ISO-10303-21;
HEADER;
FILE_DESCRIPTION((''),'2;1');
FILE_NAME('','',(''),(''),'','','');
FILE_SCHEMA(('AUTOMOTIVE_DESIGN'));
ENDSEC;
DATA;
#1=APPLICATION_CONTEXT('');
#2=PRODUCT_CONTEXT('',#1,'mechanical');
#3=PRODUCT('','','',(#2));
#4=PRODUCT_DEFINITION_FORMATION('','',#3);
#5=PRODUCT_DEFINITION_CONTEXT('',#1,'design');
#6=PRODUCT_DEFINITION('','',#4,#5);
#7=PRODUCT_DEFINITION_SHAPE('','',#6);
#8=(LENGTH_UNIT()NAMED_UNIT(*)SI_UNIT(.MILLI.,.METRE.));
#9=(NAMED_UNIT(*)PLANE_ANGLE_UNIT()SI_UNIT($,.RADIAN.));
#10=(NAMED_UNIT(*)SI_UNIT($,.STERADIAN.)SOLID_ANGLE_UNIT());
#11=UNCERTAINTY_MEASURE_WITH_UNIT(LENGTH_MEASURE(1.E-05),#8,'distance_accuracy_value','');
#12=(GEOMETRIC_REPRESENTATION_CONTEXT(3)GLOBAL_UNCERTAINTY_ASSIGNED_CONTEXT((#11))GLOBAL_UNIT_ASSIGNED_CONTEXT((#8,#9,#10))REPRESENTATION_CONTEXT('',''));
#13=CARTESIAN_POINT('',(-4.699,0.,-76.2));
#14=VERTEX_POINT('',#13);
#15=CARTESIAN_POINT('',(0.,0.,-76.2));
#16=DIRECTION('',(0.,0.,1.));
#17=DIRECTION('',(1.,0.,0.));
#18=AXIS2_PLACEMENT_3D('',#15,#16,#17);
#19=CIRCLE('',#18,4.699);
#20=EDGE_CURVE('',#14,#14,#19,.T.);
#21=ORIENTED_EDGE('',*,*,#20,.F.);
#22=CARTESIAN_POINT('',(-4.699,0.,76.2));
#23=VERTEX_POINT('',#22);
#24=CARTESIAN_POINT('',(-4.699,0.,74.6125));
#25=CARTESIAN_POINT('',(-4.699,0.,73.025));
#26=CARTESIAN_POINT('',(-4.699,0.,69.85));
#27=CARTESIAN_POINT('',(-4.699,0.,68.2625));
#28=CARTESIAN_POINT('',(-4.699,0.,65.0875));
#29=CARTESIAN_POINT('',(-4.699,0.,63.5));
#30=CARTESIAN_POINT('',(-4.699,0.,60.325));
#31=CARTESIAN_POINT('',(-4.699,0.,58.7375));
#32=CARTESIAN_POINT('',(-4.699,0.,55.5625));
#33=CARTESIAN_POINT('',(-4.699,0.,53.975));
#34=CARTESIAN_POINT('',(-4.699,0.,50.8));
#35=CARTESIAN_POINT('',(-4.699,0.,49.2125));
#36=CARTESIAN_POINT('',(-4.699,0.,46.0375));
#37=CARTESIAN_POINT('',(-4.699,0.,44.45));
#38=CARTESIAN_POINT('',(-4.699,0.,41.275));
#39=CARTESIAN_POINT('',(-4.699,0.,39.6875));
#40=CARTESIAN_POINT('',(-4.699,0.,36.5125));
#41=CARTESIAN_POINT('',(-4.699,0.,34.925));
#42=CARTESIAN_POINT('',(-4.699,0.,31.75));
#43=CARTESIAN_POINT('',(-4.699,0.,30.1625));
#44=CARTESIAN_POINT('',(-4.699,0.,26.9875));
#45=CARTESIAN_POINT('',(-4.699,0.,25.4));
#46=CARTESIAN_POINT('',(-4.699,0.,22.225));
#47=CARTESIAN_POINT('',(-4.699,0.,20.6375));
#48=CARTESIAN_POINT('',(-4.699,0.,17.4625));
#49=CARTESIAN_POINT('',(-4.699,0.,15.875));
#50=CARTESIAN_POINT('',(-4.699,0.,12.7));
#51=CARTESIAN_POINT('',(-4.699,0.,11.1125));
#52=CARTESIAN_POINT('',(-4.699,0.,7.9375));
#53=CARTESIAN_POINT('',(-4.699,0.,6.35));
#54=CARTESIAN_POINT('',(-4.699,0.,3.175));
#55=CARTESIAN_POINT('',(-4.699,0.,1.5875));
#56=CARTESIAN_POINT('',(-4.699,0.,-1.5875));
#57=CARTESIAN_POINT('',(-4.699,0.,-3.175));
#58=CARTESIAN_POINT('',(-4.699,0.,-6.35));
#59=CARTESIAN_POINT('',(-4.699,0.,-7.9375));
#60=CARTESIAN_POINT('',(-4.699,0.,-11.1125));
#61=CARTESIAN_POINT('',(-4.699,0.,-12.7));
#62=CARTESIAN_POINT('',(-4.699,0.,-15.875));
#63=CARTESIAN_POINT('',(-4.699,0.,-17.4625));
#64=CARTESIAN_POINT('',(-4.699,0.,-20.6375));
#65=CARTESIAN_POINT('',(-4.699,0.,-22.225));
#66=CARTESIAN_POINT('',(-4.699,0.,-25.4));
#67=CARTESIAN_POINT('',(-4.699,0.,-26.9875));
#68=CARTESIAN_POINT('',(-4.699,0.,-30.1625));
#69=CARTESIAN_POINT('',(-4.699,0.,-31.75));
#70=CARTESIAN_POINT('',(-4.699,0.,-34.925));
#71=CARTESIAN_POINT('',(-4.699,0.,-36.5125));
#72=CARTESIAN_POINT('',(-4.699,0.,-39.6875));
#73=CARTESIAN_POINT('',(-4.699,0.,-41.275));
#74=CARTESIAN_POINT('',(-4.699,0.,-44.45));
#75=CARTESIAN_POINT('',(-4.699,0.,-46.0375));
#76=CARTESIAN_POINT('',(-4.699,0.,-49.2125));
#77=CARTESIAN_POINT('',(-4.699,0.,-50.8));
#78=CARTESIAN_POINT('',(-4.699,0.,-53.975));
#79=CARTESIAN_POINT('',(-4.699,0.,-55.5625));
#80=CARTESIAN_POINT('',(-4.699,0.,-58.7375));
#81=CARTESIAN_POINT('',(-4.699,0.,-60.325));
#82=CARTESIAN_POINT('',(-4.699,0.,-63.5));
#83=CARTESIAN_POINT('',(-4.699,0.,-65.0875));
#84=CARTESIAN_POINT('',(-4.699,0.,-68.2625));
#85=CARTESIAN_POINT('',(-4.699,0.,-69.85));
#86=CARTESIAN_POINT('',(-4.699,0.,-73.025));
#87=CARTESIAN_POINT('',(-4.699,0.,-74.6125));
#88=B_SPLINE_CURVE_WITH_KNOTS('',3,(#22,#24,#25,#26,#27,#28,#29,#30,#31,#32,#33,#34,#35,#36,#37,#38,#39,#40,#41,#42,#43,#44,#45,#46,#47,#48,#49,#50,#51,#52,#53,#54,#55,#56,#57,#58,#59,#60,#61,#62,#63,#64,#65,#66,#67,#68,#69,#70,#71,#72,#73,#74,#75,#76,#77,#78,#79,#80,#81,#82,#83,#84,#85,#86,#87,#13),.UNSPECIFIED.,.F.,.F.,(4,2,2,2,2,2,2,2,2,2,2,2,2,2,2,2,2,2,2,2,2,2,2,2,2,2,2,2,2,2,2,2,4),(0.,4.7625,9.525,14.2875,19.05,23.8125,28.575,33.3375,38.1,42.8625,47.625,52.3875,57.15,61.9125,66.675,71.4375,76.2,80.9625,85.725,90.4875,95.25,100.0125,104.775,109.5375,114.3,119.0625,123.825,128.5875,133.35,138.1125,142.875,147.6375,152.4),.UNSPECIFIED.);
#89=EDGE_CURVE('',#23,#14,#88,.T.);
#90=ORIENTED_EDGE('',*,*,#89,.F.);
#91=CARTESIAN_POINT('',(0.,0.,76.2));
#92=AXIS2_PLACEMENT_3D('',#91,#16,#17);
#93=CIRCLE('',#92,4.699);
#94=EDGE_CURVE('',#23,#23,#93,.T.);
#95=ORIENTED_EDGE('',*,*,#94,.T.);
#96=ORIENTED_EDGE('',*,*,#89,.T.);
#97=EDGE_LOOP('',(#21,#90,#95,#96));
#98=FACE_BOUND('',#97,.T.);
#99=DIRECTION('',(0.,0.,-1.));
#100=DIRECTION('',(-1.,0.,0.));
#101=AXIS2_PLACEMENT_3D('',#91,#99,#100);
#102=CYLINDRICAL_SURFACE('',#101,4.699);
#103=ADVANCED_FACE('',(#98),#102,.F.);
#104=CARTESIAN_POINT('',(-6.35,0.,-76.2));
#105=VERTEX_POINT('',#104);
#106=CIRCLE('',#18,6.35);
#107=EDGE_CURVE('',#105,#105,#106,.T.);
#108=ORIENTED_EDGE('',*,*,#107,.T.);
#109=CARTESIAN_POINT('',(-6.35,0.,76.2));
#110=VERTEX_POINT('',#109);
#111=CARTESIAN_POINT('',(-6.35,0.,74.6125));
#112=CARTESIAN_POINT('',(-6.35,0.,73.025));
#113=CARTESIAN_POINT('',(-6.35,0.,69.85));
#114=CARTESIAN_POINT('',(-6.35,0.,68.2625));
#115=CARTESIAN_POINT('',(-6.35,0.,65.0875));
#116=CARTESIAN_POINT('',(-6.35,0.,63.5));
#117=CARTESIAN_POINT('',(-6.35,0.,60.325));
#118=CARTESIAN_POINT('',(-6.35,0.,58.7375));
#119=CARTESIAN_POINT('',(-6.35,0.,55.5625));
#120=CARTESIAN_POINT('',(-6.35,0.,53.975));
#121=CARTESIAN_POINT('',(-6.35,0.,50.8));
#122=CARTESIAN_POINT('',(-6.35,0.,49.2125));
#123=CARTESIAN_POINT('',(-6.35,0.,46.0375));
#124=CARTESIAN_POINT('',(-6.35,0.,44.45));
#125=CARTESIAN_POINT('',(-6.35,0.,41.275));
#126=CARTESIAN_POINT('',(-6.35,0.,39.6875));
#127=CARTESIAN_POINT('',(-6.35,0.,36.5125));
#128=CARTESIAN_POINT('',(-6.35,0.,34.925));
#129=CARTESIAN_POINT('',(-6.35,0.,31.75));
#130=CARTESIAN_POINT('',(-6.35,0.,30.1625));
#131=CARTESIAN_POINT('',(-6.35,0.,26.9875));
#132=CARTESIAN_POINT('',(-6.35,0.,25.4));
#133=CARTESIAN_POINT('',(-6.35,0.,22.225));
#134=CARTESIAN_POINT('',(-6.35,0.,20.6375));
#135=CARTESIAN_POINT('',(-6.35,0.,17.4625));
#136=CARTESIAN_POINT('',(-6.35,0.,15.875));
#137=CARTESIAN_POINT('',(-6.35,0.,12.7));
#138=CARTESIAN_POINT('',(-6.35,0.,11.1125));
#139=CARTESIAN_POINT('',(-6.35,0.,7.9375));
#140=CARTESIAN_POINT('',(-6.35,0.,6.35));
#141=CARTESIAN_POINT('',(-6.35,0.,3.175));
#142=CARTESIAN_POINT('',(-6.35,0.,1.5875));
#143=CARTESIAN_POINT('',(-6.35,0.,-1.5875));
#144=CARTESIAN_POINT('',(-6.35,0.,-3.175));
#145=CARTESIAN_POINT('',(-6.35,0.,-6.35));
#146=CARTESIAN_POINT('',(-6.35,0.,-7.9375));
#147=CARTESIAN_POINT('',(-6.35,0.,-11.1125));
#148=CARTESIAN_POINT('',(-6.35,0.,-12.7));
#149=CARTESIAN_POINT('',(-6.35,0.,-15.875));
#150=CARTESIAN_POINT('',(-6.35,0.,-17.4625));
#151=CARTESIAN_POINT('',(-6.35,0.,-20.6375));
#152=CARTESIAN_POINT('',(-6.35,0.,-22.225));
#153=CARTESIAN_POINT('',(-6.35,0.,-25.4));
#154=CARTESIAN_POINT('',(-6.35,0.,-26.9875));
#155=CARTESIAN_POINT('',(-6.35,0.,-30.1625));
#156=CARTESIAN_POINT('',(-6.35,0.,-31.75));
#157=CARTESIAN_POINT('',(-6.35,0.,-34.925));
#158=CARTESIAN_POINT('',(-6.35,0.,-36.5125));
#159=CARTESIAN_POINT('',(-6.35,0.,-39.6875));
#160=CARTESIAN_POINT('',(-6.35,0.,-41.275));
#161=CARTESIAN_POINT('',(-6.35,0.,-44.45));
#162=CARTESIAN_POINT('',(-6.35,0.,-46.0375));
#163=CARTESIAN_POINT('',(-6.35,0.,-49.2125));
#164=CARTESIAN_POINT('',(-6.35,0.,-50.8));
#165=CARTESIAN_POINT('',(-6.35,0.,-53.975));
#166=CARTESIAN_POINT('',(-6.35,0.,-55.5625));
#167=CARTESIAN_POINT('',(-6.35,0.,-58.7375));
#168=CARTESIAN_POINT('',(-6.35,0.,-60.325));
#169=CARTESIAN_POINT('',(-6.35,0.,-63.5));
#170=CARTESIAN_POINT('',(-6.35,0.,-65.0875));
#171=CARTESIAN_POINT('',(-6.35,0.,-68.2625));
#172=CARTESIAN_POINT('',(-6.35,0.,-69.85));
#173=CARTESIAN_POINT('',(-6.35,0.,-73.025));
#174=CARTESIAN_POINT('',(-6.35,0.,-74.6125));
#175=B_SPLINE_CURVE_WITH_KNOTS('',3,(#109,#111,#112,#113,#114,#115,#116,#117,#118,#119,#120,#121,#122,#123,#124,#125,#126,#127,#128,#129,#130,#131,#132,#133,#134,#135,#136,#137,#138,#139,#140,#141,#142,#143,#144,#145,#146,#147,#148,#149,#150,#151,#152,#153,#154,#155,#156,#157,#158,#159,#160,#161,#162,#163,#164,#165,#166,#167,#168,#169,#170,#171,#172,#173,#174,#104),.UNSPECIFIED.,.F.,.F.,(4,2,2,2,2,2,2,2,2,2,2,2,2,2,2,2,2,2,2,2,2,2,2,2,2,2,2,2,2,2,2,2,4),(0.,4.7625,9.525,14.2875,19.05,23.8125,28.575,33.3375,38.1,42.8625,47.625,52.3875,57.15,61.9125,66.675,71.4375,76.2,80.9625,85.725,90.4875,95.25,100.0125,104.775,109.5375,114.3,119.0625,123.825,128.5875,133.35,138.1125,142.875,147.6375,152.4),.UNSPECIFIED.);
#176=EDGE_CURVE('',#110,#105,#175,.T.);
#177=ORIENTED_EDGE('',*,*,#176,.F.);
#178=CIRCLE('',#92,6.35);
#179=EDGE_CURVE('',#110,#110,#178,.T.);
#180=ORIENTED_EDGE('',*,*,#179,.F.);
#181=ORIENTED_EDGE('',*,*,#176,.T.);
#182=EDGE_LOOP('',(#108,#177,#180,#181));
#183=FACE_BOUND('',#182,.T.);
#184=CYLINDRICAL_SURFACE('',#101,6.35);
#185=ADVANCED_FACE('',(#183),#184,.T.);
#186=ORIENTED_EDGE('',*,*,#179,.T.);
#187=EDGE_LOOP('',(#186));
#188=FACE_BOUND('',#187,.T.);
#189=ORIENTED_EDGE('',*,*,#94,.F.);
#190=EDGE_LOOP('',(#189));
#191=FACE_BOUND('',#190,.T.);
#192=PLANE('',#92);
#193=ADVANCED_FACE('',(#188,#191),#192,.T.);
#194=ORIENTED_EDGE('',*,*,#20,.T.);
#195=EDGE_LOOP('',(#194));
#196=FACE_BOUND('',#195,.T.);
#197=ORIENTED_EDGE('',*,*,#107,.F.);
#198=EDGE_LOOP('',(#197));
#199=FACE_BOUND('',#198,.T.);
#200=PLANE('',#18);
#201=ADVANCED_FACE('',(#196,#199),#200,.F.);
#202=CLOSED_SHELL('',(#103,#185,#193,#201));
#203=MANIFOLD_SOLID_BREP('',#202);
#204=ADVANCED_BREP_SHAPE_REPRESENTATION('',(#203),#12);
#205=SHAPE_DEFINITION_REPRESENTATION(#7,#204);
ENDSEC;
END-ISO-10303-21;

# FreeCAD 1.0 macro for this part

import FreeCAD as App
import Part
import Sketcher

V = App.Vector
Q = App.Units.Quantity

doc = App.newDocument("Part")
body = doc.addObject("PartDesign::Body", "Body")

# Sketch on XY plane
sketch1 = body.newObject("Sketcher::SketchObject", "Sketch")
sketch1.AttachmentSupport = (doc.getObject("XY_Plane"), [""])
sketch1.MapMode = "FlatFace"
sketch1.addGeometry([
    Part.Circle(V(0, 0, 0), V(0, 0, 1), 6.3),
    Part.Circle(V(0, 0, 0), V(0, 0, 1), 4.7),
], False)
sketch1.addConstraint([
    Sketcher.Constraint("Coincident", 0, 3, -1, 1),
    Sketcher.Constraint("Coincident", 1, 3, -1, 1),
    Sketcher.Constraint("Diameter", 0, Q("0.5 in")),
    Sketcher.Constraint("Diameter", 1, Q("0.37 in")),
])
pad1 = body.newObject("PartDesign::Pad", "Pad")
pad1.Profile = sketch1
pad1.Length = Q("6 in")
pad1.Midplane = True

doc.recompute()
